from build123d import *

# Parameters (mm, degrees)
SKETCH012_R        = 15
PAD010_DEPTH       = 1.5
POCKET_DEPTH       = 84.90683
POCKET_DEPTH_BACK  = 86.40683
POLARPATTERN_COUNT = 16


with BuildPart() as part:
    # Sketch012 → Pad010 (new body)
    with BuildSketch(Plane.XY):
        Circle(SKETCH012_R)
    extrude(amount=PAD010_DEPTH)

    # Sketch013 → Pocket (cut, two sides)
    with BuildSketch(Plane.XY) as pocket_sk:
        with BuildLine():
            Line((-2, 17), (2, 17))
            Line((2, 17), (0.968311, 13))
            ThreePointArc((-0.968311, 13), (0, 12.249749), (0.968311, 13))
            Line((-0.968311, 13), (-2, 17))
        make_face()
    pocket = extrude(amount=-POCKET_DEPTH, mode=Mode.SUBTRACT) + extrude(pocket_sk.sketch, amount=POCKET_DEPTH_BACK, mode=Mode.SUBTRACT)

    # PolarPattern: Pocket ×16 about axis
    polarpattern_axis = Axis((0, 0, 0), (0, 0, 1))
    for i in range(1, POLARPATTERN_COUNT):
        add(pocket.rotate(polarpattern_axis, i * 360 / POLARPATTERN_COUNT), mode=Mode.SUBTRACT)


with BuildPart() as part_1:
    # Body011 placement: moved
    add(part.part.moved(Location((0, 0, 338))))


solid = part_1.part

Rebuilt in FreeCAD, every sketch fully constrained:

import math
import FreeCAD as App
import Part
import Sketcher
Q = App.Units.Quantity

doc = App.newDocument("Part")
body = doc.addObject("PartDesign::Body", "Body")

sketch1 = body.newObject("Sketcher::SketchObject", "Sketch")
sketch1.AttachmentSupport = (doc.getObject("XY_Plane"), [""])
sketch1.MapMode = "FlatFace"
sketch1.addGeometry(Part.Circle(App.Vector(0, 0, 0), App.Vector(0, 0, 1), 15), False)
sketch1.addConstraint(Sketcher.Constraint("Coincident", 0, 3, -1, 1))
sketch1.addConstraint(Sketcher.Constraint("Diameter", 0, Q("30 mm")))
pad1 = body.newObject("PartDesign::Pad", "Pad")
pad1.Profile = sketch1
pad1.Length = 1.5

sketch2 = body.newObject("Sketcher::SketchObject", "Sketch001")
sketch2.AttachmentSupport = (doc.getObject("XY_Plane"), [""])
sketch2.MapMode = "FlatFace"
sketch2.addGeometry(Part.LineSegment(App.Vector(2, 17, 0), App.Vector(-2, 17, 0)), False)
sketch2.addGeometry(Part.LineSegment(App.Vector(-2, 17, 0), App.Vector(-0.968311, 13, 0)), False)
sketch2.addGeometry(Part.ArcOfCircle(Part.Circle(App.Vector(0, 13.24975, 0), App.Vector(0, 0, 1), 1.000001), math.radians(-165.537318), math.radians(-14.462682)), False)
sketch2.addGeometry(Part.LineSegment(App.Vector(0.968311, 13, 0), App.Vector(2, 17, 0)), False)
sketch2.addConstraint(Sketcher.Constraint("Coincident", 0, 2, 1, 1))
sketch2.addConstraint(Sketcher.Constraint("Tangent", 1, 2, 2, 1))
sketch2.addConstraint(Sketcher.Constraint("Tangent", 2, 2, 3, 1))
sketch2.addConstraint(Sketcher.Constraint("Coincident", 3, 2, 0, 1))
sketch2.addConstraint(Sketcher.Constraint("Horizontal", 0))
sketch2.addConstraint(Sketcher.Constraint("Symmetric", 1, 2, 2, 2, -2))
sketch2.addConstraint(Sketcher.Constraint("Radius", 2, Q("1.000001 mm")))
sketch2.addConstraint(Sketcher.Constraint("DistanceX", 0, 2, 0, 1, Q("4 mm")))
sketch2.addConstraint(Sketcher.Constraint("DistanceY", -1, 1, 0, 2, Q("17 mm")))
sketch2.addConstraint(Sketcher.Constraint("DistanceY", -1, 1, 1, 2, Q("13 mm")))
pocket1 = body.newObject("PartDesign::Pocket", "Pocket")
pocket1.Profile = sketch2
pocket1.Type = "ThroughAll"
pocket1.Midplane = True
doc.recompute()

polarpattern = body.newObject("PartDesign::PolarPattern", "PolarPattern")
polarpattern.Originals = [pocket1]
polarpattern.Axis = (doc.getObject("Z_Axis"), [""])
polarpattern.Angle = 360
polarpattern.Occurrences = 16
body.Tip = polarpattern
body2 = doc.addObject("PartDesign::Body", "Body001")
doc.recompute()

body.Placement = App.Placement(App.Vector(0, 0, 338), App.Rotation(App.Vector(0, 0, 1), 0))
boolean = body2.newObject("PartDesign::Boolean", "Boolean")
boolean.Type = "Fuse"
boolean.addObjects([body])

doc.recompute()
